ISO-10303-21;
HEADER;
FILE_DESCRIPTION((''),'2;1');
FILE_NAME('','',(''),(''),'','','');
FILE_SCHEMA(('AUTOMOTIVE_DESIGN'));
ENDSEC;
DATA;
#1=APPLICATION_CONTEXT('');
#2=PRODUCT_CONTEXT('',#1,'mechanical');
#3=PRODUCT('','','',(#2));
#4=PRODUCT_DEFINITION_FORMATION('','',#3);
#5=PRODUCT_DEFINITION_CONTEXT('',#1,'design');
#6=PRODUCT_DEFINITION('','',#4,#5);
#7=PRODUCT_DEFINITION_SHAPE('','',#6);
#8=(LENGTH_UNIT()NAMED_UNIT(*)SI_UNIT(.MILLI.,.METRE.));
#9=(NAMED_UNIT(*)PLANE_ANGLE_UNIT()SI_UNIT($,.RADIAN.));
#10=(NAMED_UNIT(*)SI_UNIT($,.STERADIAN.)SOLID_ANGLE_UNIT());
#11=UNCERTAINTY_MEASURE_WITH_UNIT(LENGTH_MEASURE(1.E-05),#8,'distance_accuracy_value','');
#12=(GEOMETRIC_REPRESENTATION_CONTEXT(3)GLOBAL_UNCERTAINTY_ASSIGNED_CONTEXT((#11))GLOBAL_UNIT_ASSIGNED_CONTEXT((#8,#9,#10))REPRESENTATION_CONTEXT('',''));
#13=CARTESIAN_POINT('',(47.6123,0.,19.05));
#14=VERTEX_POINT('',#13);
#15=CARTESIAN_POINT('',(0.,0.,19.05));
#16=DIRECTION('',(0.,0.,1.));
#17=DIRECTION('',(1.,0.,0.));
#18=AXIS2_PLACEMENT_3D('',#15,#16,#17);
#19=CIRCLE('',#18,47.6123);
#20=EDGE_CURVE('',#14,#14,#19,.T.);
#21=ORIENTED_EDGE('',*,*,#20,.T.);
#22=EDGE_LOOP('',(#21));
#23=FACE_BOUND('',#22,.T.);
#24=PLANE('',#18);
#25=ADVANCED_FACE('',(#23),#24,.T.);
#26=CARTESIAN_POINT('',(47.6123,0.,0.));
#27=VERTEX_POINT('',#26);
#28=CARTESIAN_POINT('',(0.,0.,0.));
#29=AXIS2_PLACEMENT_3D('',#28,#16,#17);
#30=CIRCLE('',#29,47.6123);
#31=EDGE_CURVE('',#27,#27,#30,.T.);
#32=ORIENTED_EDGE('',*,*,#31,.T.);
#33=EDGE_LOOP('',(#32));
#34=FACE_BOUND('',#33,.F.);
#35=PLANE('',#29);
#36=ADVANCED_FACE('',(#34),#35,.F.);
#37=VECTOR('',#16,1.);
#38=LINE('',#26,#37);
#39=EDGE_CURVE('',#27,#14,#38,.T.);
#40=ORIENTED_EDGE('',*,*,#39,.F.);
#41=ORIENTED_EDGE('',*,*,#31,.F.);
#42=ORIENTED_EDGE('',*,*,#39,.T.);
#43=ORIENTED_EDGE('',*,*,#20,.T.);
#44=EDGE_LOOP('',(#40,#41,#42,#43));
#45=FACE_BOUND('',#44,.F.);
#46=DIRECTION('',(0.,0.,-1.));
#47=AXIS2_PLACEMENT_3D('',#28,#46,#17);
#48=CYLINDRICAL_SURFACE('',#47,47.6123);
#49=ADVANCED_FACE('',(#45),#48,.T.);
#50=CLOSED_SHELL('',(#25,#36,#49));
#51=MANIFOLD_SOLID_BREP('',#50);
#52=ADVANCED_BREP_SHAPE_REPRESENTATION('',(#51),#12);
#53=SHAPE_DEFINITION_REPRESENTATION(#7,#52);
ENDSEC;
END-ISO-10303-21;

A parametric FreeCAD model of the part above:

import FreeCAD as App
import Part
import Sketcher

V = App.Vector
Q = App.Units.Quantity

doc = App.newDocument("Part")
body = doc.addObject("PartDesign::Body", "Body")

# Sketch on XY plane
sketch1 = body.newObject("Sketcher::SketchObject", "Sketch")
sketch1.AttachmentSupport = (doc.getObject("XY_Plane"), [""])
sketch1.MapMode = "FlatFace"
sketch1.addGeometry(Part.Circle(V(0, 0, 0), V(0, 0, 1), 48), False)
sketch1.addConstraint([
    Sketcher.Constraint("Coincident", 0, 3, -1, 1),
    Sketcher.Constraint("Diameter", 0, Q("3.749 in")),
])
pad1 = body.newObject("PartDesign::Pad", "Pad")
pad1.Profile = sketch1
pad1.Length = Q("0.75 in")

doc.recompute()
